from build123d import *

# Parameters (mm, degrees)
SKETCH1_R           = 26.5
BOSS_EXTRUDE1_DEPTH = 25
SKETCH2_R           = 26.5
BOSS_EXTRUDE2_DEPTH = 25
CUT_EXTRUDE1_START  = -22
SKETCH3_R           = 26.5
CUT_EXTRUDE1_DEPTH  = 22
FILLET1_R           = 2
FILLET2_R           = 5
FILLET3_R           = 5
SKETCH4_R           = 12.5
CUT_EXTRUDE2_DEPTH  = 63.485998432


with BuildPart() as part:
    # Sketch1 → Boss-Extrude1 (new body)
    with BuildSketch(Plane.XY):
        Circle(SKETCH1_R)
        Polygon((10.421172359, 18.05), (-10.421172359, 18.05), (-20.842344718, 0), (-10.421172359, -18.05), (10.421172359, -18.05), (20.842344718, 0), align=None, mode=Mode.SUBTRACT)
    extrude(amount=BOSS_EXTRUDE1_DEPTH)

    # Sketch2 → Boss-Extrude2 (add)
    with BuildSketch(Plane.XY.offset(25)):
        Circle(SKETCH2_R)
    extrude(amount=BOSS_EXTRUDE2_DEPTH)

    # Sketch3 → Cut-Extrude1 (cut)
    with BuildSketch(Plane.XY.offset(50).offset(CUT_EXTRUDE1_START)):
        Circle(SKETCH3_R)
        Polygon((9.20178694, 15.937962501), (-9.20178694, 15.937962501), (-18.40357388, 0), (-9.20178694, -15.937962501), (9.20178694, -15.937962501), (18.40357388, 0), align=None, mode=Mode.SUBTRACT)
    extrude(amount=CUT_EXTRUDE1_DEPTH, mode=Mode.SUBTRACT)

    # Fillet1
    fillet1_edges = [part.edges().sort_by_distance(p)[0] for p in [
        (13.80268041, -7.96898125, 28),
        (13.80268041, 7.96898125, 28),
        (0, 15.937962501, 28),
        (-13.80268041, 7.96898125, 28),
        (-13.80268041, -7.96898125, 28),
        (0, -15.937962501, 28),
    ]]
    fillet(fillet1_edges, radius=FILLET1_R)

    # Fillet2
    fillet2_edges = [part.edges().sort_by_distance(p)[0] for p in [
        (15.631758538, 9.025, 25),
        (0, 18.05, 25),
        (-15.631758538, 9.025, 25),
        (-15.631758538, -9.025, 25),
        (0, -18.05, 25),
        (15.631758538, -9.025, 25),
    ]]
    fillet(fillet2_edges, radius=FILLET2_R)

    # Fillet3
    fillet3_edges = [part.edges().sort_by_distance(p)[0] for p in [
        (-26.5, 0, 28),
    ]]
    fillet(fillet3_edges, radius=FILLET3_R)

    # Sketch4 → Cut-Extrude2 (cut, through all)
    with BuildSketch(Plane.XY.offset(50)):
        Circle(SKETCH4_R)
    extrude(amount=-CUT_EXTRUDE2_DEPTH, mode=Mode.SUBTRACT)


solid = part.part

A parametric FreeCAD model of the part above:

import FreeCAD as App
import Part
import Sketcher
Q = App.Units.Quantity


def edges_at(feature, points):
    """Names of the edges that pass closest to the given points."""
    edges = feature.Shape.Edges
    near = lambda p: min(range(len(edges)), key=lambda i: edges[i].distToShape(Part.Vertex(*p))[0])
    return sorted({f"Edge{near(p) + 1}" for p in points})


def add_polygon(sketch, points):
    """Adds a closed chain of lines whose ends are joined by coincident constraints."""
    first, n = sketch.GeometryCount, len(points)
    for a, b in zip(points, points[1:] + points[:1]):
        sketch.addGeometry(Part.LineSegment(App.Vector(*a, 0), App.Vector(*b, 0)), False)
    for i in range(n):
        sketch.addConstraint(Sketcher.Constraint("Coincident", first + i, 2, first + (i + 1) % n, 1))

doc = App.newDocument("Part")
params = doc.addObject("Spreadsheet::Sheet", "Params")
for row, (alias, value) in enumerate([
    ("sketch1_diameter", "53 mm"),
    ("pad1_length", "25 mm"),
    ("sketch2_diameter", "53 mm"),
    ("pad2_length", "25 mm"),
    ("sketch3_diameter", "53 mm"),
    ("pocket1_length", "22 mm"),
    ("fillet_radius", "2 mm"),
    ("fillet2_radius", "5 mm"),
    ("fillet3_radius", "5 mm"),
    ("sketch4_diameter", "25 mm"),
], start=1):
    params.set(f"A{row}", alias)
    params.set(f"B{row}", "=" + value)
    params.setAlias(f"B{row}", alias)

body = doc.addObject("PartDesign::Body", "Body")

# Sketch on XY plane
sketch1 = doc.addObject("Sketcher::SketchObject", "Sketch")
body.addObject(sketch1)
sketch1.AttachmentSupport = (doc.XY_Plane, [""])
sketch1.MapMode = "FlatFace"
sketch1.addGeometry(Part.Circle(App.Vector(0, 0, 0), App.Vector(0, 0, 1), 26), False)  # 0
add_polygon(sketch1, [(-10, 18), (10, 18), (21, 0), (10, -18), (-10, -18), (-21, 0)])  # lines 1-6
sketch1.addConstraint([
    Sketcher.Constraint("Horizontal", 1),
    Sketcher.Constraint("Horizontal", 4),
    Sketcher.Constraint("Coincident", 0, 3, -1, 1),
    Sketcher.Constraint("Symmetric", 1, 2, 4, 2, -1, 1),
    Sketcher.Constraint("Symmetric", 2, 2, 5, 2, -1, 1),
    Sketcher.Constraint("PointOnObject", 2, 2, -1),
    Sketcher.Constraint("Parallel", 3, 6),
    Sketcher.Constraint("Vertical", 1, 2, 3, 2),
    Sketcher.Constraint("Diameter", 0, Q("53 mm")),
    Sketcher.Constraint("Angle", 2, Q("-60 deg")),
    Sketcher.Constraint("DistanceY", 3, 2, 1, 2, Q("36.1 mm")),
    Sketcher.Constraint("DistanceX", 1, 1, 1, 2, Q("20.842345 mm")),
])
sketch1.setExpression("Constraints[14]", "Params.sketch1_diameter")
pad1 = doc.addObject("PartDesign::Pad", "Pad")
body.addObject(pad1)
pad1.Profile = sketch1
pad1.setExpression("Length", "Params.pad1_length")

# Sketch on XY plane
sketch2 = doc.addObject("Sketcher::SketchObject", "Sketch001")
body.addObject(sketch2)
sketch2.AttachmentSupport = (doc.XY_Plane, [""])
sketch2.MapMode = "FlatFace"
sketch2.AttachmentOffset = App.Placement(App.Vector(0, 0, 25), App.Rotation())
sketch2.addGeometry(Part.Circle(App.Vector(0, 0, 0), App.Vector(0, 0, 1), 26), False)
sketch2.addConstraint([
    Sketcher.Constraint("Coincident", 0, 3, -1, 1),
    Sketcher.Constraint("Diameter", 0, Q("53 mm")),
])
sketch2.setExpression("Constraints[1]", "Params.sketch2_diameter")
pad2 = doc.addObject("PartDesign::Pad", "Pad001")
body.addObject(pad2)
pad2.Profile = sketch2
pad2.setExpression("Length", "Params.pad2_length")

# Sketch on XY plane
sketch3 = doc.addObject("Sketcher::SketchObject", "Sketch002")
body.addObject(sketch3)
sketch3.AttachmentSupport = (doc.XY_Plane, [""])
sketch3.MapMode = "FlatFace"
sketch3.AttachmentOffset = App.Placement(App.Vector(0, 0, 28), App.Rotation())
sketch3.addGeometry(Part.Circle(App.Vector(0, 0, 0), App.Vector(0, 0, 1), 26), False)  # 0
add_polygon(sketch3, [(-9, 16), (9, 16), (18, 0), (9, -16), (-9, -16), (-18, 0)])  # lines 1-6
sketch3.addConstraint([
    Sketcher.Constraint("Horizontal", 1),
    Sketcher.Constraint("Horizontal", 4),
    Sketcher.Constraint("Coincident", 0, 3, -1, 1),
    Sketcher.Constraint("Symmetric", 1, 2, 4, 2, -1, 1),
    Sketcher.Constraint("Symmetric", 2, 2, 5, 2, -1, 1),
    Sketcher.Constraint("PointOnObject", 2, 2, -1),
    Sketcher.Constraint("Parallel", 3, 6),
    Sketcher.Constraint("Vertical", 1, 2, 3, 2),
    Sketcher.Constraint("Diameter", 0, Q("53 mm")),
    Sketcher.Constraint("Angle", 2, Q("-60 deg")),
    Sketcher.Constraint("DistanceX", 1, 1, 1, 2, Q("18.403574 mm")),
    Sketcher.Constraint("DistanceX", 4, 2, 2, 2, Q("27.605361 mm")),
])
sketch3.setExpression("Constraints[14]", "Params.sketch3_diameter")
pocket1 = doc.addObject("PartDesign::Pocket", "Pocket")
body.addObject(pocket1)
pocket1.Profile = sketch3
pocket1.setExpression("Length", "Params.pocket1_length")
pocket1.Reversed = True
doc.recompute()

fillet = doc.addObject("PartDesign::Fillet", "Fillet")
body.addObject(fillet)
fillet.Base = (pocket1, edges_at(pocket1, [
    (13.803, -7.969, 28),
    (13.803, 7.969, 28),
    (0, 15.938, 28),
    (-13.803, 7.969, 28),
    (-13.803, -7.969, 28),
    (0, -15.938, 28),
]))
fillet.setExpression("Radius", "Params.fillet_radius")
doc.recompute()

fillet2 = doc.addObject("PartDesign::Fillet", "Fillet001")
body.addObject(fillet2)
fillet2.Base = (fillet, edges_at(fillet, [
    (15.632, 9.025, 25),
    (0, 18.05, 25),
    (-15.632, 9.025, 25),
    (-15.632, -9.025, 25),
    (0, -18.05, 25),
    (15.632, -9.025, 25),
]))
fillet2.setExpression("Radius", "Params.fillet2_radius")
doc.recompute()

fillet3 = doc.addObject("PartDesign::Fillet", "Fillet002")
body.addObject(fillet3)
fillet3.Base = (fillet2, edges_at(fillet2, [(-26.5, 0, 28)]))
fillet3.setExpression("Radius", "Params.fillet3_radius")

# Sketch on XY plane
sketch4 = doc.addObject("Sketcher::SketchObject", "Sketch003")
body.addObject(sketch4)
sketch4.AttachmentSupport = (doc.XY_Plane, [""])
sketch4.MapMode = "FlatFace"
sketch4.AttachmentOffset = App.Placement(App.Vector(0, 0, 50), App.Rotation())
sketch4.addGeometry(Part.Circle(App.Vector(0, 0, 0), App.Vector(0, 0, 1), 12), False)
sketch4.addConstraint([
    Sketcher.Constraint("Coincident", 0, 3, -1, 1),
    Sketcher.Constraint("Diameter", 0, Q("25 mm")),
])
sketch4.setExpression("Constraints[1]", "Params.sketch4_diameter")
pocket2 = doc.addObject("PartDesign::Pocket", "Pocket001")
body.addObject(pocket2)
pocket2.Profile = sketch4
pocket2.Type = "ThroughAll"

doc.recompute()
